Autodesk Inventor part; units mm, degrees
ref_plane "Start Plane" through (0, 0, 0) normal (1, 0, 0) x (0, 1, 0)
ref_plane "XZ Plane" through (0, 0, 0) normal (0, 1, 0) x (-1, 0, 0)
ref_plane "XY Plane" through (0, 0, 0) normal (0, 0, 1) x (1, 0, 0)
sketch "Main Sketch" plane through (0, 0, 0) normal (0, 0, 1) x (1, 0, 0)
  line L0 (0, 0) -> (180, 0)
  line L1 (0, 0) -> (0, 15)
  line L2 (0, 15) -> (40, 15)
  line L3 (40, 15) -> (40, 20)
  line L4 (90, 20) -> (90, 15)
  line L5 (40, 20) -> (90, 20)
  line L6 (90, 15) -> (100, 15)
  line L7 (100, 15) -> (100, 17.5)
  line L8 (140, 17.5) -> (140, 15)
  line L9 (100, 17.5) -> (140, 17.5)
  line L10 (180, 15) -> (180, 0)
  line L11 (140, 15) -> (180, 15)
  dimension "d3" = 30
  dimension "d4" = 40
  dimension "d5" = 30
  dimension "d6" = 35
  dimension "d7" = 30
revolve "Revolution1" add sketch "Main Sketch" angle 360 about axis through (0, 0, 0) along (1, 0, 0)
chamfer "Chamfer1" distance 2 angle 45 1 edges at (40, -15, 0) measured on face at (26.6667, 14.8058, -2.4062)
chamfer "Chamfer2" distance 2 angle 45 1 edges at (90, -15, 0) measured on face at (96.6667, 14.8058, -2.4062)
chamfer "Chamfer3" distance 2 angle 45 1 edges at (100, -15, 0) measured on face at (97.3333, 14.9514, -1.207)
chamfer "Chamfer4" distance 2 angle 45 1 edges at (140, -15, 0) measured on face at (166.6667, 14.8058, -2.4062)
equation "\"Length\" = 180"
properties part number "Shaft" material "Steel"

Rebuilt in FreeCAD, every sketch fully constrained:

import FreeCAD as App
import Part
import Sketcher
from FreeCAD import Vector
Q = App.Units.Quantity


def edges_at(feature, points):
    """Names of the edges that pass closest to the given points."""
    edges = feature.Shape.Edges
    near = lambda p: min(range(len(edges)), key=lambda i: edges[i].distToShape(Part.Vertex(*p))[0])
    return sorted({f"Edge{near(p) + 1}" for p in points})

doc = App.newDocument("Part")
body = doc.addObject("PartDesign::Body", "Body")

# Sketch on XY plane
sketch1 = doc.addObject("Sketcher::SketchObject", "Sketch")
body.addObject(sketch1)
sketch1.AttachmentSupport = (doc.XY_Plane, [""])
sketch1.MapMode = "FlatFace"
sketch1.addGeometry(Part.LineSegment(Vector(0, 15, 0), Vector(0, 0, 0)), False)
sketch1.addGeometry(Part.LineSegment(Vector(0, 0, 0), Vector(180, 0, 0)), False)
sketch1.addGeometry(Part.LineSegment(Vector(180, 0, 0), Vector(180, 15, 0)), False)
sketch1.addGeometry(Part.LineSegment(Vector(180, 15, 0), Vector(140, 15, 0)), False)
sketch1.addGeometry(Part.LineSegment(Vector(140, 15, 0), Vector(140, 17.5, 0)), False)
sketch1.addGeometry(Part.LineSegment(Vector(140, 17.5, 0), Vector(100, 17.5, 0)), False)
sketch1.addGeometry(Part.LineSegment(Vector(100, 17.5, 0), Vector(100, 15, 0)), False)
sketch1.addGeometry(Part.LineSegment(Vector(100, 15, 0), Vector(90, 15, 0)), False)
sketch1.addGeometry(Part.LineSegment(Vector(90, 15, 0), Vector(90, 20, 0)), False)
sketch1.addGeometry(Part.LineSegment(Vector(90, 20, 0), Vector(40, 20, 0)), False)
sketch1.addGeometry(Part.LineSegment(Vector(40, 20, 0), Vector(40, 15, 0)), False)
sketch1.addGeometry(Part.LineSegment(Vector(40, 15, 0), Vector(0, 15, 0)), False)
sketch1.addConstraint(Sketcher.Constraint("Coincident", 0, 2, 1, 1))
sketch1.addConstraint(Sketcher.Constraint("Coincident", 1, 2, 2, 1))
sketch1.addConstraint(Sketcher.Constraint("Coincident", 2, 2, 3, 1))
sketch1.addConstraint(Sketcher.Constraint("Coincident", 3, 2, 4, 1))
sketch1.addConstraint(Sketcher.Constraint("Coincident", 4, 2, 5, 1))
sketch1.addConstraint(Sketcher.Constraint("Coincident", 5, 2, 6, 1))
sketch1.addConstraint(Sketcher.Constraint("Coincident", 6, 2, 7, 1))
sketch1.addConstraint(Sketcher.Constraint("Coincident", 7, 2, 8, 1))
sketch1.addConstraint(Sketcher.Constraint("Coincident", 8, 2, 9, 1))
sketch1.addConstraint(Sketcher.Constraint("Coincident", 9, 2, 10, 1))
sketch1.addConstraint(Sketcher.Constraint("Coincident", 10, 2, 11, 1))
sketch1.addConstraint(Sketcher.Constraint("Coincident", 11, 2, 0, 1))
sketch1.addConstraint(Sketcher.Constraint("Vertical", 0))
sketch1.addConstraint(Sketcher.Constraint("Horizontal", 1))
sketch1.addConstraint(Sketcher.Constraint("Vertical", 2))
sketch1.addConstraint(Sketcher.Constraint("Horizontal", 3))
sketch1.addConstraint(Sketcher.Constraint("Vertical", 4))
sketch1.addConstraint(Sketcher.Constraint("Horizontal", 5))
sketch1.addConstraint(Sketcher.Constraint("Vertical", 6))
sketch1.addConstraint(Sketcher.Constraint("Horizontal", 7))
sketch1.addConstraint(Sketcher.Constraint("Vertical", 8))
sketch1.addConstraint(Sketcher.Constraint("Horizontal", 9))
sketch1.addConstraint(Sketcher.Constraint("Vertical", 10))
sketch1.addConstraint(Sketcher.Constraint("Horizontal", 11))
sketch1.addConstraint(Sketcher.Constraint("Coincident", 0, 2, -1, 1))
sketch1.addConstraint(Sketcher.Constraint("Horizontal", 3, 2, 6, 2))
sketch1.addConstraint(Sketcher.Constraint("Horizontal", 7, 2, 10, 2))
sketch1.addConstraint(Sketcher.Constraint("Equal", 3, 5))
sketch1.addConstraint(Sketcher.Constraint("Equal", 5, 11))
sketch1.addConstraint(Sketcher.Constraint("DistanceX", 3, 2, 3, 1, Q("40 mm")))
sketch1.addConstraint(Sketcher.Constraint("DistanceX", 1, 1, 1, 2, Q("180 mm")))
sketch1.addConstraint(Sketcher.Constraint("DistanceX", 7, 2, 7, 1, Q("10 mm")))
sketch1.addConstraint(Sketcher.Constraint("DistanceY", 0, 2, 0, 1, Q("15 mm")))
sketch1.addConstraint(Sketcher.Constraint("DistanceY", 8, 1, 8, 2, Q("5 mm")))
sketch1.addConstraint(Sketcher.Constraint("DistanceY", 4, 1, 4, 2, Q("2.5 mm")))
revolution = doc.addObject("PartDesign::Revolution", "Revolution")
body.addObject(revolution)
revolution.Profile = sketch1
revolution.ReferenceAxis = (sketch1, ["H_Axis"])
revolution.Angle = 360
doc.recompute()

chamfer = doc.addObject("PartDesign::Chamfer", "Chamfer")
body.addObject(chamfer)
chamfer.Base = (revolution, edges_at(revolution, [(40, -15, 0)]))
chamfer.Size = 2
doc.recompute()

chamfer2 = doc.addObject("PartDesign::Chamfer", "Chamfer001")
body.addObject(chamfer2)
chamfer2.Base = (chamfer, edges_at(chamfer, [(90, -15, 0)]))
chamfer2.Size = 2
doc.recompute()

chamfer3 = doc.addObject("PartDesign::Chamfer", "Chamfer002")
body.addObject(chamfer3)
chamfer3.Base = (chamfer2, edges_at(chamfer2, [(100, -15, 0)]))
chamfer3.Size = 2
doc.recompute()

chamfer4 = doc.addObject("PartDesign::Chamfer", "Chamfer003")
body.addObject(chamfer4)
chamfer4.Base = (chamfer3, edges_at(chamfer3, [(140, -15, 0)]))
chamfer4.Size = 2

doc.recompute()
